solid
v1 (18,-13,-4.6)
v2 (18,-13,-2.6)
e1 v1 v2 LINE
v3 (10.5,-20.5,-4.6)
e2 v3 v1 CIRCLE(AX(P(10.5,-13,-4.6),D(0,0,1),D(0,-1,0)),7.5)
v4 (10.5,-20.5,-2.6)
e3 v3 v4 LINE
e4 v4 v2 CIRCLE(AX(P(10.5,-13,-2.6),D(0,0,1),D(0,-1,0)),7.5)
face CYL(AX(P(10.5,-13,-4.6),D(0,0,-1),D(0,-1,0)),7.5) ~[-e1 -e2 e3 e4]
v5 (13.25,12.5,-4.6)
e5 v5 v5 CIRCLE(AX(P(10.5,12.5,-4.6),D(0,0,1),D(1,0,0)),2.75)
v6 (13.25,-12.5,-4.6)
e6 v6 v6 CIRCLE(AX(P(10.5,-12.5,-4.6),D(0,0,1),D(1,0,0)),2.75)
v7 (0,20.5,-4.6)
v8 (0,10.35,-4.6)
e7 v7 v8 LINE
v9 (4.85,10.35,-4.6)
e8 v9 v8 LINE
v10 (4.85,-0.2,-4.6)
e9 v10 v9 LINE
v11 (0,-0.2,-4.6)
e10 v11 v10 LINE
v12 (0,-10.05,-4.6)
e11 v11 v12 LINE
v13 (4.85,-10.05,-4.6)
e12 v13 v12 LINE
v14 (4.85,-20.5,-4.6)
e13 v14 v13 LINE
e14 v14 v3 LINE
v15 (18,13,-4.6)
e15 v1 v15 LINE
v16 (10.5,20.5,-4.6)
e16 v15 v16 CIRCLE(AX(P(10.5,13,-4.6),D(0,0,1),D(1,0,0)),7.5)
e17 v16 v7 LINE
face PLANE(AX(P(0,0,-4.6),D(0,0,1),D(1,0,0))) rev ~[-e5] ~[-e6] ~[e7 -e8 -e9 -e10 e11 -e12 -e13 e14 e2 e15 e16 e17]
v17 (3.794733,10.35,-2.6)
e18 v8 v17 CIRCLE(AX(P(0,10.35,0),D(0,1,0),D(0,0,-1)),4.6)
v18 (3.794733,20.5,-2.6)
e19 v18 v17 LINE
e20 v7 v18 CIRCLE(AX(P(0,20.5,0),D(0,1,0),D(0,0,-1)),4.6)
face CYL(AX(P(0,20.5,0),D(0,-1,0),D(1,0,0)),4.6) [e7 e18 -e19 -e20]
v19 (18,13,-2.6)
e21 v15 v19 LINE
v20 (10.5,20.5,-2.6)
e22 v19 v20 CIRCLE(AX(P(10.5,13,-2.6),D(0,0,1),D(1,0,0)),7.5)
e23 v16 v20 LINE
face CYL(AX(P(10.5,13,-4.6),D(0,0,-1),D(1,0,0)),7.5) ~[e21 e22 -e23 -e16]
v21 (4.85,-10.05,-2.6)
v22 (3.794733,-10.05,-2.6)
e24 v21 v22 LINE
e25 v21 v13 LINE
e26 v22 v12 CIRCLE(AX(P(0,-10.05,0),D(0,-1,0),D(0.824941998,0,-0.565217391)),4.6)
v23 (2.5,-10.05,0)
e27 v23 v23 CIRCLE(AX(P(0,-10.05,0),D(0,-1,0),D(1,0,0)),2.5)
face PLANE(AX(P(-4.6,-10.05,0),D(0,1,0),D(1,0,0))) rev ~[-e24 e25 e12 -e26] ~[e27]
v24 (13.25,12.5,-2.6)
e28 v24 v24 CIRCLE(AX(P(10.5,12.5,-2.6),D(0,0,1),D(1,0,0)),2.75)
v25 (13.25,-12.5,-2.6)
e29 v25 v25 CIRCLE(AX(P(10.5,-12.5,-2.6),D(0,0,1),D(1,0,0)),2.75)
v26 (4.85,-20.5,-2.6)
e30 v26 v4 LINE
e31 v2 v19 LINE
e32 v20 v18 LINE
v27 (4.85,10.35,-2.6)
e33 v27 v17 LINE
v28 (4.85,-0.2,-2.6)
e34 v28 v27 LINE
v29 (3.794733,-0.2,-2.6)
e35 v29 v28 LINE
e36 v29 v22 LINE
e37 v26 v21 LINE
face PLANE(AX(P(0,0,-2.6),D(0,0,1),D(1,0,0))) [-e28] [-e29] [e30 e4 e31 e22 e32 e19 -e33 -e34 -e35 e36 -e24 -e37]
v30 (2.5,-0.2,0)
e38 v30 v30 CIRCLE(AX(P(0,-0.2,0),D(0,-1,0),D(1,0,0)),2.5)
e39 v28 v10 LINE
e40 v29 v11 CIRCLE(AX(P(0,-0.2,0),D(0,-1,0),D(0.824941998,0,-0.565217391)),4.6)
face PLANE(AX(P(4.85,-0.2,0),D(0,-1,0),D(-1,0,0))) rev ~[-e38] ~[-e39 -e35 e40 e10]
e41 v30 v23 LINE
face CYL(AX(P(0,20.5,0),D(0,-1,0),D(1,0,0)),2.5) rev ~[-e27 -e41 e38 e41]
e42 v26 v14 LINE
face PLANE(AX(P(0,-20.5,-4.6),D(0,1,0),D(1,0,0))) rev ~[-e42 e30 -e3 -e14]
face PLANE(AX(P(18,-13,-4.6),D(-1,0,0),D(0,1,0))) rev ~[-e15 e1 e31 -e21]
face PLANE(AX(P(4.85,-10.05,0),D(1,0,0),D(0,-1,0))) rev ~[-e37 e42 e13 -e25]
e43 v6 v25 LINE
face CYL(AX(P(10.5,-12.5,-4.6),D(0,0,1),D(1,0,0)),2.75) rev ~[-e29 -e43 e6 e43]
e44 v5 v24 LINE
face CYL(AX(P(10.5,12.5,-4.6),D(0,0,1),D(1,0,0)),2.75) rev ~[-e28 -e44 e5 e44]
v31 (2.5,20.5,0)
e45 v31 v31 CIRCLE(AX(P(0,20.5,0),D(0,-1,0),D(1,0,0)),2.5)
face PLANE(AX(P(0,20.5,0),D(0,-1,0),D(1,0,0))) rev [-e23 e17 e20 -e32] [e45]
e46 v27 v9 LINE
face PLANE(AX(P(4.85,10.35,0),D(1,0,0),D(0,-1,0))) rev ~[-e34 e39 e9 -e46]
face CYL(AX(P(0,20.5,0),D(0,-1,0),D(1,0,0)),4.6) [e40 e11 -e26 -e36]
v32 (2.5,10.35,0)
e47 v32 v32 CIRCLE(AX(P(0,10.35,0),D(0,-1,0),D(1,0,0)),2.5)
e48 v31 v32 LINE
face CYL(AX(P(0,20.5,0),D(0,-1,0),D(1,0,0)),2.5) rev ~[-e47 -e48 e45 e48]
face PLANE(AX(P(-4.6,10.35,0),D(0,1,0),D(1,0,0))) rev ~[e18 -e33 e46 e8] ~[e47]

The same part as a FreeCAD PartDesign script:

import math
import FreeCAD as App
import Part
import Sketcher

V = App.Vector

doc = App.newDocument("Part")
body = doc.addObject("PartDesign::Body", "Body")

# Sketch on XY plane
sketch1 = body.newObject("Sketcher::SketchObject", "Sketch")
sketch1.AttachmentSupport = (doc.getObject("XY_Plane"), [""])
sketch1.MapMode = "FlatFace"
sketch1.addGeometry([
    Part.LineSegment(V(0, 20.5, 0), V(0, -20.5, 0)),
    Part.LineSegment(V(0, -20.5, 0), V(4.6, -20.5, 0)),
    Part.LineSegment(V(4.6, -20.5, 0), V(4.6, 20.5, 0)),
    Part.LineSegment(V(4.6, 20.5, 0), V(0, 20.5, 0)),
], False)
sketch1.addConstraint([
    Sketcher.Constraint("Coincident", 0, 2, 1, 1),
    Sketcher.Constraint("Coincident", 1, 2, 2, 1),
    Sketcher.Constraint("Coincident", 2, 2, 3, 1),
    Sketcher.Constraint("Coincident", 3, 2, 0, 1),
    Sketcher.Constraint("Vertical", 0),
    Sketcher.Constraint("Horizontal", 1),
    Sketcher.Constraint("Vertical", 2),
    Sketcher.Constraint("Horizontal", 3),
    Sketcher.Constraint("Symmetric", 0, 2, 3, 2, -1, 1),
    Sketcher.Constraint("DistanceY", 0, 2, 0, 1, 41.0),
    Sketcher.Constraint("DistanceX", 1, 1, 1, 2, 4.6),
])
revolution = body.newObject("PartDesign::Revolution", "Revolution")
revolution.Profile = sketch1
revolution.ReferenceAxis = (sketch1, ["V_Axis"])
revolution.Angle = 360

# Sketch on XY plane
sketch2 = body.newObject("Sketcher::SketchObject", "Sketch001")
sketch2.AttachmentSupport = (doc.getObject("XY_Plane"), [""])
sketch2.MapMode = "FlatFace"
sketch2.AttachmentOffset = App.Placement(V(0, 0, -4.6), App.Rotation())
sketch2.addGeometry([
    Part.LineSegment(V(10, 20, 0), V(0, 20, 0)),  # 0
    Part.LineSegment(V(0, 20, 0), V(0, -20, 0)),  # 1
    Part.LineSegment(V(0, -20, 0), V(10, -20, 0)),  # 2
    Part.ArcOfCircle(Part.Circle(V(10, -13, 0), V(0, 0, 1), 8), math.radians(-90), math.radians(0)),  # 3
    Part.LineSegment(V(18, -13, 0), V(18, 13, 0)),  # 4
    Part.ArcOfCircle(Part.Circle(V(10, 13, 0), V(0, 0, 1), 8), math.radians(0), math.radians(90)),  # 5
], False)
sketch2.addConstraint([
    Sketcher.Constraint("Coincident", 0, 2, 1, 1),
    Sketcher.Constraint("Coincident", 1, 2, 2, 1),
    Sketcher.Constraint("Tangent", 2, 2, 3, 1),
    Sketcher.Constraint("Tangent", 3, 2, 4, 1),
    Sketcher.Constraint("Tangent", 4, 2, 5, 1),
    Sketcher.Constraint("Tangent", 5, 2, 0, 1),
    Sketcher.Constraint("Horizontal", 0),
    Sketcher.Constraint("Vertical", 1),
    Sketcher.Constraint("Horizontal", 2),
    Sketcher.Constraint("Vertical", 4),
    Sketcher.Constraint("Equal", 3, 5),
    Sketcher.Constraint("Symmetric", 0, 2, 1, 2, -1, 1),
    Sketcher.Constraint("Radius", 3, 7.5),
    Sketcher.Constraint("DistanceY", 1, 2, 1, 1, 41.0),
    Sketcher.Constraint("DistanceX", 0, 2, 0, 1, 10.5),
])
pad1 = body.newObject("PartDesign::Pad", "Pad")
pad1.Profile = sketch2
pad1.Length = 2

# Sketch on XY plane
sketch3 = body.newObject("Sketcher::SketchObject", "Sketch002")
sketch3.AttachmentSupport = (doc.getObject("XY_Plane"), [""])
sketch3.MapMode = "FlatFace"
sketch3.addGeometry([
    Part.LineSegment(V(41, 41, 0), V(-41, 41, 0)),  # 0
    Part.LineSegment(V(-41, 41, 0), V(-41, -41, 0)),  # 1
    Part.LineSegment(V(-41, -41, 0), V(41, -41, 0)),  # 2
    Part.LineSegment(V(41, -41, 0), V(41, 41, 0)),  # 3
    Part.LineSegment(V(-5, 10, 0), V(-5, 20, 0)),  # 4
    Part.LineSegment(V(-5, 20, 0), V(18, 20, 0)),  # 5
    Part.LineSegment(V(18, 20, 0), V(18, -20, 0)),  # 6
    Part.LineSegment(V(18, -20, 0), V(5, -20, 0)),  # 7
    Part.LineSegment(V(5, -20, 0), V(5, -10, 0)),  # 8
    Part.LineSegment(V(5, -10, 0), V(-5, -10, 0)),  # 9
    Part.LineSegment(V(-5, -10, 0), V(-5, 0, 0)),  # 10
    Part.LineSegment(V(-5, 0, 0), V(5, 0, 0)),  # 11
    Part.LineSegment(V(5, 0, 0), V(5, 10, 0)),  # 12
    Part.LineSegment(V(5, 10, 0), V(-5, 10, 0)),  # 13
], False)
sketch3.addConstraint([
    Sketcher.Constraint("Coincident", 0, 2, 1, 1),
    Sketcher.Constraint("Coincident", 1, 2, 2, 1),
    Sketcher.Constraint("Coincident", 2, 2, 3, 1),
    Sketcher.Constraint("Coincident", 3, 2, 0, 1),
    Sketcher.Constraint("Coincident", 4, 2, 5, 1),
    Sketcher.Constraint("Coincident", 5, 2, 6, 1),
    Sketcher.Constraint("Coincident", 6, 2, 7, 1),
    Sketcher.Constraint("Coincident", 7, 2, 8, 1),
    Sketcher.Constraint("Coincident", 8, 2, 9, 1),
    Sketcher.Constraint("Coincident", 9, 2, 10, 1),
    Sketcher.Constraint("Coincident", 10, 2, 11, 1),
    Sketcher.Constraint("Coincident", 11, 2, 12, 1),
    Sketcher.Constraint("Coincident", 12, 2, 13, 1),
    Sketcher.Constraint("Coincident", 13, 2, 4, 1),
    Sketcher.Constraint("Horizontal", 0),
    Sketcher.Constraint("Vertical", 1),
    Sketcher.Constraint("Horizontal", 2),
    Sketcher.Constraint("Vertical", 3),
    Sketcher.Constraint("Vertical", 4),
    Sketcher.Constraint("Horizontal", 5),
    Sketcher.Constraint("Vertical", 6),
    Sketcher.Constraint("Horizontal", 7),
    Sketcher.Constraint("Vertical", 8),
    Sketcher.Constraint("Horizontal", 9),
    Sketcher.Constraint("Vertical", 10),
    Sketcher.Constraint("Horizontal", 11),
    Sketcher.Constraint("Vertical", 12),
    Sketcher.Constraint("Horizontal", 13),
    Sketcher.Constraint("Symmetric", 0, 2, 2, 2, -1, 1),
    Sketcher.Constraint("Vertical", 4, 2, 9, 2),
    Sketcher.Constraint("Vertical", 8, 2, 11, 2),
    Sketcher.Constraint("Equal", 2, 1),
    Sketcher.Constraint("DistanceX", 0, 2, 0, 1, 82.0),
    Sketcher.Constraint("DistanceY", 6, 2, 6, 1, 41.0),
    Sketcher.Constraint("DistanceX", 5, 1, 5, 2, 22.6),
    Sketcher.Constraint("DistanceX", -1, 1, 5, 2, 18.0),
    Sketcher.Constraint("DistanceX", 7, 2, 7, 1, 13.15),
    Sketcher.Constraint("DistanceY", 4, 1, 4, 2, 10.15),
    Sketcher.Constraint("DistanceY", 8, 1, 8, 2, 10.45),
    Sketcher.Constraint("DistanceY", 10, 1, 10, 2, 9.85),
    Sketcher.Constraint("DistanceY", -1, 1, 4, 2, 20.5),
])
pocket1 = body.newObject("PartDesign::Pocket", "Pocket")
pocket1.Profile = sketch3
pocket1.Length = 82
pocket1.Midplane = True

# Sketch on XY plane
sketch4 = body.newObject("Sketcher::SketchObject", "Sketch003")
sketch4.AttachmentSupport = (doc.getObject("XY_Plane"), [""])
sketch4.MapMode = "FlatFace"
sketch4.addGeometry([
    Part.LineSegment(V(0, 20.5, 0), V(0, -20.5, 0)),
    Part.LineSegment(V(0, -20.5, 0), V(2.5, -20.5, 0)),
    Part.LineSegment(V(2.5, -20.5, 0), V(2.5, 20.5, 0)),
    Part.LineSegment(V(2.5, 20.5, 0), V(0, 20.5, 0)),
], False)
sketch4.addConstraint([
    Sketcher.Constraint("Coincident", 0, 2, 1, 1),
    Sketcher.Constraint("Coincident", 1, 2, 2, 1),
    Sketcher.Constraint("Coincident", 2, 2, 3, 1),
    Sketcher.Constraint("Coincident", 3, 2, 0, 1),
    Sketcher.Constraint("Vertical", 0),
    Sketcher.Constraint("Horizontal", 1),
    Sketcher.Constraint("Vertical", 2),
    Sketcher.Constraint("Horizontal", 3),
    Sketcher.Constraint("Symmetric", 0, 2, 3, 2, -1, 1),
    Sketcher.Constraint("DistanceY", 0, 2, 0, 1, 41.0),
    Sketcher.Constraint("DistanceX", 1, 1, 1, 2, 2.5),
])
groove = body.newObject("PartDesign::Groove", "Groove")
groove.Profile = sketch4
groove.ReferenceAxis = (sketch4, ["V_Axis"])
groove.Angle = 360

# Sketch on XZ plane
sketch5 = body.newObject("Sketcher::SketchObject", "Sketch004")
sketch5.AttachmentSupport = (doc.getObject("XZ_Plane"), [""])
sketch5.MapMode = "FlatFace"
sketch5.AttachmentOffset = App.Placement(V(0, 0, -12.5), App.Rotation())
sketch5.addGeometry([
    Part.LineSegment(V(10.5, -4.6, 0), V(10.5, -2.6, 0)),
    Part.LineSegment(V(10.5, -2.6, 0), V(13.2, -2.6, 0)),
    Part.LineSegment(V(13.2, -2.6, 0), V(13.2, -4.6, 0)),
    Part.LineSegment(V(13.2, -4.6, 0), V(10.5, -4.6, 0)),
], False)
sketch5.addGeometry(Part.LineSegment(V(10.5, -4.6, 0), V(10.5, -2.6, 0)), True)  # axis
sketch5.addConstraint([
    Sketcher.Constraint("Coincident", 0, 2, 1, 1),
    Sketcher.Constraint("Coincident", 1, 2, 2, 1),
    Sketcher.Constraint("Coincident", 2, 2, 3, 1),
    Sketcher.Constraint("Coincident", 3, 2, 0, 1),
    Sketcher.Constraint("Vertical", 0),
    Sketcher.Constraint("Horizontal", 1),
    Sketcher.Constraint("Vertical", 2),
    Sketcher.Constraint("Horizontal", 3),
    Sketcher.Constraint("Vertical", 4),
    Sketcher.Constraint("Coincident", 4, 1, 3, 2),
    Sketcher.Constraint("Horizontal", 1, 2, 4, 2),
    Sketcher.Constraint("DistanceY", 0, 1, 0, 2, 2.0),
    Sketcher.Constraint("DistanceX", 1, 1, 1, 2, 2.75),
    Sketcher.Constraint("DistanceX", -1, 1, 0, 2, 10.5),
    Sketcher.Constraint("DistanceY", 0, 2, -1, 1, 2.6),
])
groove2 = body.newObject("PartDesign::Groove", "Groove001")
groove2.Profile = sketch5
groove2.ReferenceAxis = (sketch5, ["Axis0"])
groove2.Angle = 360

# Sketch on XZ plane
sketch6 = body.newObject("Sketcher::SketchObject", "Sketch005")
sketch6.AttachmentSupport = (doc.getObject("XZ_Plane"), [""])
sketch6.MapMode = "FlatFace"
sketch6.AttachmentOffset = App.Placement(V(0, 0, 12.5), App.Rotation())
sketch6.addGeometry([
    Part.LineSegment(V(10.5, -4.6, 0), V(10.5, -2.6, 0)),
    Part.LineSegment(V(10.5, -2.6, 0), V(13.2, -2.6, 0)),
    Part.LineSegment(V(13.2, -2.6, 0), V(13.2, -4.6, 0)),
    Part.LineSegment(V(13.2, -4.6, 0), V(10.5, -4.6, 0)),
], False)
sketch6.addGeometry(Part.LineSegment(V(10.5, -4.6, 0), V(10.5, -2.6, 0)), True)  # axis
sketch6.addConstraint([
    Sketcher.Constraint("Coincident", 0, 2, 1, 1),
    Sketcher.Constraint("Coincident", 1, 2, 2, 1),
    Sketcher.Constraint("Coincident", 2, 2, 3, 1),
    Sketcher.Constraint("Coincident", 3, 2, 0, 1),
    Sketcher.Constraint("Vertical", 0),
    Sketcher.Constraint("Horizontal", 1),
    Sketcher.Constraint("Vertical", 2),
    Sketcher.Constraint("Horizontal", 3),
    Sketcher.Constraint("Vertical", 4),
    Sketcher.Constraint("Coincident", 4, 1, 3, 2),
    Sketcher.Constraint("Horizontal", 1, 2, 4, 2),
    Sketcher.Constraint("DistanceY", 0, 1, 0, 2, 2.0),
    Sketcher.Constraint("DistanceX", 1, 1, 1, 2, 2.75),
    Sketcher.Constraint("DistanceX", -1, 1, 0, 2, 10.5),
    Sketcher.Constraint("DistanceY", 0, 2, -1, 1, 2.6),
])
groove3 = body.newObject("PartDesign::Groove", "Groove002")
groove3.Profile = sketch6
groove3.ReferenceAxis = (sketch6, ["Axis0"])
groove3.Angle = 360

doc.recompute()
